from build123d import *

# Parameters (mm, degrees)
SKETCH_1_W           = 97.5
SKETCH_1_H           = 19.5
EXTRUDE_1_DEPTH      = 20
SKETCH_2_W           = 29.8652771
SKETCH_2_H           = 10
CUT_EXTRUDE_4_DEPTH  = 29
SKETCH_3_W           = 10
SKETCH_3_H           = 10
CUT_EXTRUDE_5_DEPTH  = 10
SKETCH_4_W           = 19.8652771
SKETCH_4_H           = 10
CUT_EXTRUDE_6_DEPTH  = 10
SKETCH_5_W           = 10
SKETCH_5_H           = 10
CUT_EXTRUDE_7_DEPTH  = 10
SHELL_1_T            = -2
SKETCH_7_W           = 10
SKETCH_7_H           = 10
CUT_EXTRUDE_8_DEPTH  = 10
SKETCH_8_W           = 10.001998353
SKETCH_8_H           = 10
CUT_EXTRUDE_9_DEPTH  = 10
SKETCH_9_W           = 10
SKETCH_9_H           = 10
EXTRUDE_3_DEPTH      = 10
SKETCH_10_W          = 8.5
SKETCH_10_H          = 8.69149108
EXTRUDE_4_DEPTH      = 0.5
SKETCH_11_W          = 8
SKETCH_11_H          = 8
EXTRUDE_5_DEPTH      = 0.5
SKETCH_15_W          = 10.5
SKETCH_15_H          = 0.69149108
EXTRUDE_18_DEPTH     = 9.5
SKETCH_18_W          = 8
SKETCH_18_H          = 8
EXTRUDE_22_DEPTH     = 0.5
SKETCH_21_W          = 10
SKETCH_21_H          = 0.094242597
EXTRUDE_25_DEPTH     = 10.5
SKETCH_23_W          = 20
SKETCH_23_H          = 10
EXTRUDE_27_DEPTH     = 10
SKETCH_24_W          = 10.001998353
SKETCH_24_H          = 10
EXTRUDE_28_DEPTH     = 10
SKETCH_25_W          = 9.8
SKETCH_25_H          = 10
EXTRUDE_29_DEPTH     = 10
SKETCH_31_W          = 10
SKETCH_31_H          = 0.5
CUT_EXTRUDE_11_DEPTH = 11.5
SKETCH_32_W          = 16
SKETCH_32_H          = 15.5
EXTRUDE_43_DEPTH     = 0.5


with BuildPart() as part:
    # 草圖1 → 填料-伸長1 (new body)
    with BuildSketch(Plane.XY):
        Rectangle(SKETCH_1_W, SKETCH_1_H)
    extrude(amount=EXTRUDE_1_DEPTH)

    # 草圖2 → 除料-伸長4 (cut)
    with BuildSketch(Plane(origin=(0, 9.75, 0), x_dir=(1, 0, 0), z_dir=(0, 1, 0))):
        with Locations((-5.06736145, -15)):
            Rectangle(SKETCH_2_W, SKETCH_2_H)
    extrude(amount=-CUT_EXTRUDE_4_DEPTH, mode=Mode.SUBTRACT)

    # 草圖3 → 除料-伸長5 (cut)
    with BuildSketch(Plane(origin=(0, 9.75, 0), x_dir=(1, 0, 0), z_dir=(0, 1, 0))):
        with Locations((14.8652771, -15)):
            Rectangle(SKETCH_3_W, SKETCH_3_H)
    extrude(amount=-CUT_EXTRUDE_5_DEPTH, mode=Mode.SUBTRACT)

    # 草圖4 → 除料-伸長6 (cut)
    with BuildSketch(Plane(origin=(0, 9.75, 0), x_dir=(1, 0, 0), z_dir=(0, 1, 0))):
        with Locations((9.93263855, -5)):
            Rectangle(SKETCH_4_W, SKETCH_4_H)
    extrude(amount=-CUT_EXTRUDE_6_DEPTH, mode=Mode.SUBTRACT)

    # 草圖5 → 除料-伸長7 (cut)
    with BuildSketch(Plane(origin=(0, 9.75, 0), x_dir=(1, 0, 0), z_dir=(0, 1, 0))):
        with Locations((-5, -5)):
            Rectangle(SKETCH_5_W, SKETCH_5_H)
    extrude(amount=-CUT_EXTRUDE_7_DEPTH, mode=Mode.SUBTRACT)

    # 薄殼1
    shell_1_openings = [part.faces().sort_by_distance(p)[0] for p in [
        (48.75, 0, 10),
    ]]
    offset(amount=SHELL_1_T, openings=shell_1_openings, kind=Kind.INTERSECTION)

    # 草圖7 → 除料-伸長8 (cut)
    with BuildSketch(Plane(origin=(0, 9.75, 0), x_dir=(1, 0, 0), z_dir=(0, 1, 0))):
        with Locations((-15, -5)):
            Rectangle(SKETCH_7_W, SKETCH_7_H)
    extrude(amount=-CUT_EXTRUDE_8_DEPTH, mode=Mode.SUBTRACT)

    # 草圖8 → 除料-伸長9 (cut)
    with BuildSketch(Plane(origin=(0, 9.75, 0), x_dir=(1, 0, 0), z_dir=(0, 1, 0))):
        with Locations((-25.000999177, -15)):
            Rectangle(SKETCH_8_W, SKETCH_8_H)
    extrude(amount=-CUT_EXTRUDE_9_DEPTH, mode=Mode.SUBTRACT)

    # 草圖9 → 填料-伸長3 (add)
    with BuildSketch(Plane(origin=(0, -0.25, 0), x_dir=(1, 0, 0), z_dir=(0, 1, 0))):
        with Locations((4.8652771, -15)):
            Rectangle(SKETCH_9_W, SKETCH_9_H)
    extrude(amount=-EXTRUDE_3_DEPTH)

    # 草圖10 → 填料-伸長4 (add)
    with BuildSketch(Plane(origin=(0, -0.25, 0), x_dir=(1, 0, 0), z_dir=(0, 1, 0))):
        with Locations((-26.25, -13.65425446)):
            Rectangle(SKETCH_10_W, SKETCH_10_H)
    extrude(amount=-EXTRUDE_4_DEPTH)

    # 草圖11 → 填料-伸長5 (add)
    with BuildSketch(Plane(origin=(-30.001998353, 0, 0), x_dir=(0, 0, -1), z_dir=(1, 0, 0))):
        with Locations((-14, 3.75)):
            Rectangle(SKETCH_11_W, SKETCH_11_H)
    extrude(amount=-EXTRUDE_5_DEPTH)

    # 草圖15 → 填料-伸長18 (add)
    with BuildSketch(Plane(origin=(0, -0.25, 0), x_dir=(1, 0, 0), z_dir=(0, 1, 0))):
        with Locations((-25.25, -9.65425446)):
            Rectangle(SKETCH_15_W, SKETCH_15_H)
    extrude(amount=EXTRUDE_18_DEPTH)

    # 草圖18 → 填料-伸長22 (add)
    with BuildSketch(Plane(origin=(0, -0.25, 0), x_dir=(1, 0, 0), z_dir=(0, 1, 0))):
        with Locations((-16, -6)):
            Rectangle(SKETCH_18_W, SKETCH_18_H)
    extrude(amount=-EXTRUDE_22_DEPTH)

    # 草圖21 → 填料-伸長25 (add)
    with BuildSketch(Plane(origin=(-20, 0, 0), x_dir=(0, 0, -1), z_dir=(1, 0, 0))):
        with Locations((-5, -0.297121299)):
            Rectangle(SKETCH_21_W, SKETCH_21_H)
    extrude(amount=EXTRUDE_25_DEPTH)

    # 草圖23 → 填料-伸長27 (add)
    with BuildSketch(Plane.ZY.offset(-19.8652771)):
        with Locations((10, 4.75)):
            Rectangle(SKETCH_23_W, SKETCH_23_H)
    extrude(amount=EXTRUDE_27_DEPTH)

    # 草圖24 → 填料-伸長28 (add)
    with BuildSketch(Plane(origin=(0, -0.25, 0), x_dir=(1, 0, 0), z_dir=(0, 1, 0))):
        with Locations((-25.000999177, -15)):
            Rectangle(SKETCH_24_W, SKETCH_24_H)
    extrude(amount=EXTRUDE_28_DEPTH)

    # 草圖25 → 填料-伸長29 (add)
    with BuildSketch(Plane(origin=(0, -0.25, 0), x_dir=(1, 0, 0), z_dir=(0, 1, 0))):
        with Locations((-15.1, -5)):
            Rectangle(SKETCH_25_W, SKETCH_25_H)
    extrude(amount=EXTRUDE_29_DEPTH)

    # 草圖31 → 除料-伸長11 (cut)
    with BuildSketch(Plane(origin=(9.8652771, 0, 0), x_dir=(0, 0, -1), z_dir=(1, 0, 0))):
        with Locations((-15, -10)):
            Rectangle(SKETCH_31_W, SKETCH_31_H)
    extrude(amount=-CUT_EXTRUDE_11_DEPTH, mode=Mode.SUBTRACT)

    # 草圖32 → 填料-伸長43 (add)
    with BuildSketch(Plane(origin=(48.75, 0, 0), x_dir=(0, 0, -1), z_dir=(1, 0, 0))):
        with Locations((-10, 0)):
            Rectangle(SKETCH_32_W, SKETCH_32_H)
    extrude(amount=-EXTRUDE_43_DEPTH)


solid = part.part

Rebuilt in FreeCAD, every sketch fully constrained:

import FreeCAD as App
import Part
import Sketcher
Q = App.Units.Quantity


def faces_at(feature, points):
    """Names of the faces that lie closest to the given points."""
    faces = feature.Shape.Faces
    near = lambda p: min(range(len(faces)), key=lambda i: faces[i].distToShape(Part.Vertex(*p))[0])
    return sorted({f"Face{near(p) + 1}" for p in points})

doc = App.newDocument("Part")
body = doc.addObject("PartDesign::Body", "Body")

# Sketch on XY plane
sketch1 = body.newObject("Sketcher::SketchObject", "Sketch")
sketch1.AttachmentSupport = (doc.getObject("XY_Plane"), [""])
sketch1.MapMode = "FlatFace"
sketch1.addGeometry([
    Part.LineSegment(App.Vector(-49, 10, 0), App.Vector(-49, -10, 0)),
    Part.LineSegment(App.Vector(-49, -10, 0), App.Vector(49, -10, 0)),
    Part.LineSegment(App.Vector(49, -10, 0), App.Vector(49, 10, 0)),
    Part.LineSegment(App.Vector(49, 10, 0), App.Vector(-49, 10, 0)),
], False)
sketch1.addConstraint([
    Sketcher.Constraint("Coincident", 0, 2, 1, 1),
    Sketcher.Constraint("Coincident", 1, 2, 2, 1),
    Sketcher.Constraint("Coincident", 2, 2, 3, 1),
    Sketcher.Constraint("Coincident", 3, 2, 0, 1),
    Sketcher.Constraint("Vertical", 0),
    Sketcher.Constraint("Horizontal", 1),
    Sketcher.Constraint("Vertical", 2),
    Sketcher.Constraint("Horizontal", 3),
    Sketcher.Constraint("Symmetric", 0, 2, 2, 2, -1, 1),
    Sketcher.Constraint("DistanceX", 1, 1, 1, 2, Q("97.5 mm")),
    Sketcher.Constraint("DistanceY", 0, 2, 0, 1, Q("19.5 mm")),
])
pad1 = body.newObject("PartDesign::Pad", "Pad")
pad1.Profile = sketch1
pad1.Length = 20

# Sketch on XZ plane
sketch2 = body.newObject("Sketcher::SketchObject", "Sketch001")
sketch2.AttachmentSupport = (doc.getObject("XZ_Plane"), [""])
sketch2.MapMode = "FlatFace"
sketch2.AttachmentOffset = App.Placement(App.Vector(0, 0, -9.75), App.Rotation())
sketch2.addGeometry([
    Part.LineSegment(App.Vector(-20, 10, 0), App.Vector(-20, 20, 0)),
    Part.LineSegment(App.Vector(-20, 20, 0), App.Vector(10, 20, 0)),
    Part.LineSegment(App.Vector(10, 20, 0), App.Vector(10, 10, 0)),
    Part.LineSegment(App.Vector(10, 10, 0), App.Vector(-20, 10, 0)),
], False)
sketch2.addConstraint([
    Sketcher.Constraint("Coincident", 0, 2, 1, 1),
    Sketcher.Constraint("Coincident", 1, 2, 2, 1),
    Sketcher.Constraint("Coincident", 2, 2, 3, 1),
    Sketcher.Constraint("Coincident", 3, 2, 0, 1),
    Sketcher.Constraint("Vertical", 0),
    Sketcher.Constraint("Horizontal", 1),
    Sketcher.Constraint("Vertical", 2),
    Sketcher.Constraint("Horizontal", 3),
    Sketcher.Constraint("DistanceY", 0, 1, 0, 2, Q("10 mm")),
    Sketcher.Constraint("DistanceX", 0, 2, -1, 1, Q("20 mm")),
    Sketcher.Constraint("DistanceY", -1, 1, 0, 2, Q("20 mm")),
    Sketcher.Constraint("DistanceX", 1, 1, 1, 2, Q("29.865277 mm")),
])
pocket1 = body.newObject("PartDesign::Pocket", "Pocket")
pocket1.Profile = sketch2
pocket1.Length = 29
pocket1.Reversed = True

# Sketch on XZ plane
sketch3 = body.newObject("Sketcher::SketchObject", "Sketch002")
sketch3.AttachmentSupport = (doc.getObject("XZ_Plane"), [""])
sketch3.MapMode = "FlatFace"
sketch3.AttachmentOffset = App.Placement(App.Vector(0, 0, -9.75), App.Rotation())
sketch3.addGeometry([
    Part.LineSegment(App.Vector(10, 10, 0), App.Vector(10, 20, 0)),
    Part.LineSegment(App.Vector(10, 20, 0), App.Vector(20, 20, 0)),
    Part.LineSegment(App.Vector(20, 20, 0), App.Vector(20, 10, 0)),
    Part.LineSegment(App.Vector(20, 10, 0), App.Vector(10, 10, 0)),
], False)
sketch3.addConstraint([
    Sketcher.Constraint("Coincident", 0, 2, 1, 1),
    Sketcher.Constraint("Coincident", 1, 2, 2, 1),
    Sketcher.Constraint("Coincident", 2, 2, 3, 1),
    Sketcher.Constraint("Coincident", 3, 2, 0, 1),
    Sketcher.Constraint("Vertical", 0),
    Sketcher.Constraint("Horizontal", 1),
    Sketcher.Constraint("Vertical", 2),
    Sketcher.Constraint("Horizontal", 3),
    Sketcher.Constraint("Equal", 3, 0),
    Sketcher.Constraint("DistanceX", 1, 1, 1, 2, Q("10 mm")),
    Sketcher.Constraint("DistanceY", -1, 1, 0, 2, Q("20 mm")),
    Sketcher.Constraint("DistanceX", -1, 1, 0, 2, Q("9.865277 mm")),
])
pocket2 = body.newObject("PartDesign::Pocket", "Pocket001")
pocket2.Profile = sketch3
pocket2.Length = 10
pocket2.Reversed = True

# Sketch on XZ plane
sketch4 = body.newObject("Sketcher::SketchObject", "Sketch003")
sketch4.AttachmentSupport = (doc.getObject("XZ_Plane"), [""])
sketch4.MapMode = "FlatFace"
sketch4.AttachmentOffset = App.Placement(App.Vector(0, 0, -9.75), App.Rotation())
sketch4.addGeometry([
    Part.LineSegment(App.Vector(0, 0, 0), App.Vector(0, 10, 0)),
    Part.LineSegment(App.Vector(0, 10, 0), App.Vector(20, 10, 0)),
    Part.LineSegment(App.Vector(20, 10, 0), App.Vector(20, 0, 0)),
    Part.LineSegment(App.Vector(20, 0, 0), App.Vector(0, 0, 0)),
], False)
sketch4.addConstraint([
    Sketcher.Constraint("Coincident", 0, 2, 1, 1),
    Sketcher.Constraint("Coincident", 1, 2, 2, 1),
    Sketcher.Constraint("Coincident", 2, 2, 3, 1),
    Sketcher.Constraint("Coincident", 3, 2, 0, 1),
    Sketcher.Constraint("Vertical", 0),
    Sketcher.Constraint("Horizontal", 1),
    Sketcher.Constraint("Vertical", 2),
    Sketcher.Constraint("Horizontal", 3),
    Sketcher.Constraint("Coincident", 3, 2, -1, 1),
    Sketcher.Constraint("DistanceY", 0, 1, 0, 2, Q("10 mm")),
    Sketcher.Constraint("DistanceX", 1, 1, 1, 2, Q("19.865277 mm")),
])
pocket3 = body.newObject("PartDesign::Pocket", "Pocket002")
pocket3.Profile = sketch4
pocket3.Length = 10
pocket3.Reversed = True

# Sketch on XZ plane
sketch5 = body.newObject("Sketcher::SketchObject", "Sketch004")
sketch5.AttachmentSupport = (doc.getObject("XZ_Plane"), [""])
sketch5.MapMode = "FlatFace"
sketch5.AttachmentOffset = App.Placement(App.Vector(0, 0, -9.75), App.Rotation())
sketch5.addGeometry([
    Part.LineSegment(App.Vector(-10, 0, 0), App.Vector(-10, 10, 0)),
    Part.LineSegment(App.Vector(-10, 10, 0), App.Vector(0, 10, 0)),
    Part.LineSegment(App.Vector(0, 10, 0), App.Vector(0, 0, 0)),
    Part.LineSegment(App.Vector(0, 0, 0), App.Vector(-10, 0, 0)),
], False)
sketch5.addConstraint([
    Sketcher.Constraint("Coincident", 0, 2, 1, 1),
    Sketcher.Constraint("Coincident", 1, 2, 2, 1),
    Sketcher.Constraint("Coincident", 2, 2, 3, 1),
    Sketcher.Constraint("Coincident", 3, 2, 0, 1),
    Sketcher.Constraint("Vertical", 0),
    Sketcher.Constraint("Horizontal", 1),
    Sketcher.Constraint("Vertical", 2),
    Sketcher.Constraint("Horizontal", 3),
    Sketcher.Constraint("Coincident", 2, 2, -1, 1),
    Sketcher.Constraint("Equal", 3, 0),
    Sketcher.Constraint("DistanceX", 1, 1, 1, 2, Q("10 mm")),
])
pocket4 = body.newObject("PartDesign::Pocket", "Pocket003")
pocket4.Profile = sketch5
pocket4.Length = 10
pocket4.Reversed = True
doc.recompute()

thickness = body.newObject("PartDesign::Thickness", "Thickness")
thickness.Base = (pocket4, faces_at(pocket4, [(48.75, 0, 10)]))
thickness.Value = 2
thickness.Reversed = True
thickness.Join = "Intersection"

# Sketch on XZ plane
sketch6 = body.newObject("Sketcher::SketchObject", "Sketch005")
sketch6.AttachmentSupport = (doc.getObject("XZ_Plane"), [""])
sketch6.MapMode = "FlatFace"
sketch6.AttachmentOffset = App.Placement(App.Vector(0, 0, -9.75), App.Rotation())
sketch6.addGeometry([
    Part.LineSegment(App.Vector(-20, 0, 0), App.Vector(-20, 10, 0)),
    Part.LineSegment(App.Vector(-20, 10, 0), App.Vector(-10, 10, 0)),
    Part.LineSegment(App.Vector(-10, 10, 0), App.Vector(-10, 0, 0)),
    Part.LineSegment(App.Vector(-10, 0, 0), App.Vector(-20, 0, 0)),
], False)
sketch6.addConstraint([
    Sketcher.Constraint("Coincident", 0, 2, 1, 1),
    Sketcher.Constraint("Coincident", 1, 2, 2, 1),
    Sketcher.Constraint("Coincident", 2, 2, 3, 1),
    Sketcher.Constraint("Coincident", 3, 2, 0, 1),
    Sketcher.Constraint("Vertical", 0),
    Sketcher.Constraint("Horizontal", 1),
    Sketcher.Constraint("Vertical", 2),
    Sketcher.Constraint("Horizontal", 3),
    Sketcher.Constraint("PointOnObject", 2, 2, -1),
    Sketcher.Constraint("Equal", 3, 0),
    Sketcher.Constraint("DistanceX", 1, 1, 1, 2, Q("10 mm")),
    Sketcher.Constraint("DistanceX", 0, 2, -1, 1, Q("20 mm")),
])
pocket5 = body.newObject("PartDesign::Pocket", "Pocket004")
pocket5.Profile = sketch6
pocket5.Length = 10
pocket5.Reversed = True

# Sketch on XZ plane
sketch7 = body.newObject("Sketcher::SketchObject", "Sketch006")
sketch7.AttachmentSupport = (doc.getObject("XZ_Plane"), [""])
sketch7.MapMode = "FlatFace"
sketch7.AttachmentOffset = App.Placement(App.Vector(0, 0, -9.75), App.Rotation())
sketch7.addGeometry([
    Part.LineSegment(App.Vector(-30, 10, 0), App.Vector(-30, 20, 0)),
    Part.LineSegment(App.Vector(-30, 20, 0), App.Vector(-20, 20, 0)),
    Part.LineSegment(App.Vector(-20, 20, 0), App.Vector(-20, 10, 0)),
    Part.LineSegment(App.Vector(-20, 10, 0), App.Vector(-30, 10, 0)),
], False)
sketch7.addConstraint([
    Sketcher.Constraint("Coincident", 0, 2, 1, 1),
    Sketcher.Constraint("Coincident", 1, 2, 2, 1),
    Sketcher.Constraint("Coincident", 2, 2, 3, 1),
    Sketcher.Constraint("Coincident", 3, 2, 0, 1),
    Sketcher.Constraint("Vertical", 0),
    Sketcher.Constraint("Horizontal", 1),
    Sketcher.Constraint("Vertical", 2),
    Sketcher.Constraint("Horizontal", 3),
    Sketcher.Constraint("DistanceY", 0, 1, 0, 2, Q("10 mm")),
    Sketcher.Constraint("DistanceY", -1, 1, 0, 2, Q("20 mm")),
    Sketcher.Constraint("DistanceX", 1, 2, -1, 1, Q("20 mm")),
    Sketcher.Constraint("DistanceX", 1, 1, 1, 2, Q("10.001998 mm")),
])
pocket6 = body.newObject("PartDesign::Pocket", "Pocket005")
pocket6.Profile = sketch7
pocket6.Length = 10
pocket6.Reversed = True

# Sketch on XZ plane
sketch8 = body.newObject("Sketcher::SketchObject", "Sketch007")
sketch8.AttachmentSupport = (doc.getObject("XZ_Plane"), [""])
sketch8.MapMode = "FlatFace"
sketch8.AttachmentOffset = App.Placement(App.Vector(0, 0, 0.25), App.Rotation())
sketch8.addGeometry([
    Part.LineSegment(App.Vector(0, 10, 0), App.Vector(0, 20, 0)),
    Part.LineSegment(App.Vector(0, 20, 0), App.Vector(10, 20, 0)),
    Part.LineSegment(App.Vector(10, 20, 0), App.Vector(10, 10, 0)),
    Part.LineSegment(App.Vector(10, 10, 0), App.Vector(0, 10, 0)),
], False)
sketch8.addConstraint([
    Sketcher.Constraint("Coincident", 0, 2, 1, 1),
    Sketcher.Constraint("Coincident", 1, 2, 2, 1),
    Sketcher.Constraint("Coincident", 2, 2, 3, 1),
    Sketcher.Constraint("Coincident", 3, 2, 0, 1),
    Sketcher.Constraint("Vertical", 0),
    Sketcher.Constraint("Horizontal", 1),
    Sketcher.Constraint("Vertical", 2),
    Sketcher.Constraint("Horizontal", 3),
    Sketcher.Constraint("Equal", 3, 0),
    Sketcher.Constraint("DistanceX", 1, 1, 1, 2, Q("10 mm")),
    Sketcher.Constraint("DistanceY", -1, 1, 0, 2, Q("20 mm")),
    Sketcher.Constraint("DistanceX", 0, 2, -1, 1, Q("0.134723 mm")),
])
pad2 = body.newObject("PartDesign::Pad", "Pad001")
pad2.Profile = sketch8
pad2.Length = 10

# Sketch on XZ plane
sketch9 = body.newObject("Sketcher::SketchObject", "Sketch008")
sketch9.AttachmentSupport = (doc.getObject("XZ_Plane"), [""])
sketch9.MapMode = "FlatFace"
sketch9.AttachmentOffset = App.Placement(App.Vector(0, 0, 0.25), App.Rotation())
sketch9.addGeometry([
    Part.LineSegment(App.Vector(-30, 9, 0), App.Vector(-30, 18, 0)),
    Part.LineSegment(App.Vector(-30, 18, 0), App.Vector(-22, 18, 0)),
    Part.LineSegment(App.Vector(-22, 18, 0), App.Vector(-22, 9, 0)),
    Part.LineSegment(App.Vector(-22, 9, 0), App.Vector(-30, 9, 0)),
], False)
sketch9.addConstraint([
    Sketcher.Constraint("Coincident", 0, 2, 1, 1),
    Sketcher.Constraint("Coincident", 1, 2, 2, 1),
    Sketcher.Constraint("Coincident", 2, 2, 3, 1),
    Sketcher.Constraint("Coincident", 3, 2, 0, 1),
    Sketcher.Constraint("Vertical", 0),
    Sketcher.Constraint("Horizontal", 1),
    Sketcher.Constraint("Vertical", 2),
    Sketcher.Constraint("Horizontal", 3),
    Sketcher.Constraint("DistanceX", 1, 1, 1, 2, Q("8.5 mm")),
    Sketcher.Constraint("DistanceY", -1, 1, 0, 2, Q("18 mm")),
    Sketcher.Constraint("DistanceX", 1, 2, -1, 1, Q("22 mm")),
    Sketcher.Constraint("DistanceY", 0, 1, 0, 2, Q("8.691491 mm")),
])
pad3 = body.newObject("PartDesign::Pad", "Pad002")
pad3.Profile = sketch9
pad3.Length = 0.5

# Sketch on YZ plane
sketch10 = body.newObject("Sketcher::SketchObject", "Sketch009")
sketch10.AttachmentSupport = (doc.getObject("YZ_Plane"), [""])
sketch10.MapMode = "FlatFace"
sketch10.AttachmentOffset = App.Placement(App.Vector(0, 0, -30.001998), App.Rotation())
sketch10.addGeometry([
    Part.LineSegment(App.Vector(8, 18, 0), App.Vector(0, 18, 0)),
    Part.LineSegment(App.Vector(0, 18, 0), App.Vector(0, 10, 0)),
    Part.LineSegment(App.Vector(0, 10, 0), App.Vector(8, 10, 0)),
    Part.LineSegment(App.Vector(8, 10, 0), App.Vector(8, 18, 0)),
], False)
sketch10.addConstraint([
    Sketcher.Constraint("Coincident", 0, 2, 1, 1),
    Sketcher.Constraint("Coincident", 1, 2, 2, 1),
    Sketcher.Constraint("Coincident", 2, 2, 3, 1),
    Sketcher.Constraint("Coincident", 3, 2, 0, 1),
    Sketcher.Constraint("Horizontal", 0),
    Sketcher.Constraint("Vertical", 1),
    Sketcher.Constraint("Horizontal", 2),
    Sketcher.Constraint("Vertical", 3),
    Sketcher.Constraint("Equal", 2, 1),
    Sketcher.Constraint("DistanceX", 0, 2, 0, 1, Q("8 mm")),
    Sketcher.Constraint("DistanceY", -1, 1, 0, 2, Q("18 mm")),
    Sketcher.Constraint("DistanceX", 0, 2, -1, 1, Q("0.25 mm")),
])
pad4 = body.newObject("PartDesign::Pad", "Pad003")
pad4.Profile = sketch10
pad4.Length = 0.5
pad4.Reversed = True

# Sketch on XZ plane
sketch11 = body.newObject("Sketcher::SketchObject", "Sketch010")
sketch11.AttachmentSupport = (doc.getObject("XZ_Plane"), [""])
sketch11.MapMode = "FlatFace"
sketch11.AttachmentOffset = App.Placement(App.Vector(0, 0, 0.25), App.Rotation())
sketch11.addGeometry([
    Part.LineSegment(App.Vector(-30.5, 9.3, 0), App.Vector(-30.5, 10, 0)),
    Part.LineSegment(App.Vector(-30.5, 10, 0), App.Vector(-20, 10, 0)),
    Part.LineSegment(App.Vector(-20, 10, 0), App.Vector(-20, 9.3, 0)),
    Part.LineSegment(App.Vector(-20, 9.3, 0), App.Vector(-30.5, 9.3, 0)),
], False)
sketch11.addConstraint([
    Sketcher.Constraint("Coincident", 0, 2, 1, 1),
    Sketcher.Constraint("Coincident", 1, 2, 2, 1),
    Sketcher.Constraint("Coincident", 2, 2, 3, 1),
    Sketcher.Constraint("Coincident", 3, 2, 0, 1),
    Sketcher.Constraint("Vertical", 0),
    Sketcher.Constraint("Horizontal", 1),
    Sketcher.Constraint("Vertical", 2),
    Sketcher.Constraint("Horizontal", 3),
    Sketcher.Constraint("DistanceX", 1, 1, 1, 2, Q("10.5 mm")),
    Sketcher.Constraint("DistanceY", -1, 1, 0, 2, Q("10 mm")),
    Sketcher.Constraint("DistanceX", 1, 2, -1, 1, Q("20 mm")),
    Sketcher.Constraint("DistanceY", 0, 1, 0, 2, Q("0.691491 mm")),
])
pad5 = body.newObject("PartDesign::Pad", "Pad004")
pad5.Profile = sketch11
pad5.Length = 9.5
pad5.Reversed = True

# Sketch on XZ plane
sketch12 = body.newObject("Sketcher::SketchObject", "Sketch011")
sketch12.AttachmentSupport = (doc.getObject("XZ_Plane"), [""])
sketch12.MapMode = "FlatFace"
sketch12.AttachmentOffset = App.Placement(App.Vector(0, 0, 0.25), App.Rotation())
sketch12.addGeometry([
    Part.LineSegment(App.Vector(-20, 2, 0), App.Vector(-20, 10, 0)),
    Part.LineSegment(App.Vector(-20, 10, 0), App.Vector(-12, 10, 0)),
    Part.LineSegment(App.Vector(-12, 10, 0), App.Vector(-12, 2, 0)),
    Part.LineSegment(App.Vector(-12, 2, 0), App.Vector(-20, 2, 0)),
], False)
sketch12.addConstraint([
    Sketcher.Constraint("Coincident", 0, 2, 1, 1),
    Sketcher.Constraint("Coincident", 1, 2, 2, 1),
    Sketcher.Constraint("Coincident", 2, 2, 3, 1),
    Sketcher.Constraint("Coincident", 3, 2, 0, 1),
    Sketcher.Constraint("Vertical", 0),
    Sketcher.Constraint("Horizontal", 1),
    Sketcher.Constraint("Vertical", 2),
    Sketcher.Constraint("Horizontal", 3),
    Sketcher.Constraint("Equal", 3, 0),
    Sketcher.Constraint("DistanceX", 1, 1, 1, 2, Q("8 mm")),
    Sketcher.Constraint("DistanceX", 0, 2, -1, 1, Q("20 mm")),
    Sketcher.Constraint("DistanceY", -1, 1, 0, 2, Q("10 mm")),
])
pad6 = body.newObject("PartDesign::Pad", "Pad005")
pad6.Profile = sketch12
pad6.Length = 0.5

# Sketch on YZ plane
sketch13 = body.newObject("Sketcher::SketchObject", "Sketch012")
sketch13.AttachmentSupport = (doc.getObject("YZ_Plane"), [""])
sketch13.MapMode = "FlatFace"
sketch13.AttachmentOffset = App.Placement(App.Vector(0, 0, -20), App.Rotation())
sketch13.addGeometry([
    Part.LineSegment(App.Vector(-0.25, 10, 0), App.Vector(-0.34, 10, 0)),
    Part.LineSegment(App.Vector(-0.34, 10, 0), App.Vector(-0.34, 0, 0)),
    Part.LineSegment(App.Vector(-0.34, 0, 0), App.Vector(-0.25, 0, 0)),
    Part.LineSegment(App.Vector(-0.25, 0, 0), App.Vector(-0.25, 10, 0)),
], False)
sketch13.addConstraint([
    Sketcher.Constraint("Coincident", 0, 2, 1, 1),
    Sketcher.Constraint("Coincident", 1, 2, 2, 1),
    Sketcher.Constraint("Coincident", 2, 2, 3, 1),
    Sketcher.Constraint("Coincident", 3, 2, 0, 1),
    Sketcher.Constraint("Horizontal", 0),
    Sketcher.Constraint("Vertical", 1),
    Sketcher.Constraint("Horizontal", 2),
    Sketcher.Constraint("Vertical", 3),
    Sketcher.Constraint("PointOnObject", 1, 2, -1),
    Sketcher.Constraint("DistanceY", 1, 2, 1, 1, Q("10 mm")),
    Sketcher.Constraint("DistanceX", 2, 2, -1, 1, Q("0.25 mm")),
    Sketcher.Constraint("DistanceX", 0, 2, 0, 1, Q("0.094243 mm")),
])
pad7 = body.newObject("PartDesign::Pad", "Pad006")
pad7.Profile = sketch13
pad7.Length = 10.5

# Sketch on YZ plane
sketch14 = body.newObject("Sketcher::SketchObject", "Sketch013")
sketch14.AttachmentSupport = (doc.getObject("YZ_Plane"), [""])
sketch14.MapMode = "FlatFace"
sketch14.AttachmentOffset = App.Placement(App.Vector(0, 0, 19.865277), App.Rotation())
sketch14.addGeometry([
    Part.LineSegment(App.Vector(10, 0, 0), App.Vector(0, 0, 0)),
    Part.LineSegment(App.Vector(0, 0, 0), App.Vector(0, 20, 0)),
    Part.LineSegment(App.Vector(0, 20, 0), App.Vector(10, 20, 0)),
    Part.LineSegment(App.Vector(10, 20, 0), App.Vector(10, 0, 0)),
], False)
sketch14.addConstraint([
    Sketcher.Constraint("Coincident", 0, 2, 1, 1),
    Sketcher.Constraint("Coincident", 1, 2, 2, 1),
    Sketcher.Constraint("Coincident", 2, 2, 3, 1),
    Sketcher.Constraint("Coincident", 3, 2, 0, 1),
    Sketcher.Constraint("Horizontal", 0),
    Sketcher.Constraint("Vertical", 1),
    Sketcher.Constraint("Horizontal", 2),
    Sketcher.Constraint("Vertical", 3),
    Sketcher.Constraint("PointOnObject", 0, 2, -1),
    Sketcher.Constraint("DistanceX", 0, 2, 0, 1, Q("10 mm")),
    Sketcher.Constraint("DistanceY", 1, 1, 1, 2, Q("20 mm")),
    Sketcher.Constraint("DistanceX", 0, 2, -1, 1, Q("0.25 mm")),
])
pad8 = body.newObject("PartDesign::Pad", "Pad007")
pad8.Profile = sketch14
pad8.Length = 10
pad8.Reversed = True

# Sketch on XZ plane
sketch15 = body.newObject("Sketcher::SketchObject", "Sketch014")
sketch15.AttachmentSupport = (doc.getObject("XZ_Plane"), [""])
sketch15.MapMode = "FlatFace"
sketch15.AttachmentOffset = App.Placement(App.Vector(0, 0, 0.25), App.Rotation())
sketch15.addGeometry([
    Part.LineSegment(App.Vector(-30, 10, 0), App.Vector(-30, 20, 0)),
    Part.LineSegment(App.Vector(-30, 20, 0), App.Vector(-20, 20, 0)),
    Part.LineSegment(App.Vector(-20, 20, 0), App.Vector(-20, 10, 0)),
    Part.LineSegment(App.Vector(-20, 10, 0), App.Vector(-30, 10, 0)),
], False)
sketch15.addConstraint([
    Sketcher.Constraint("Coincident", 0, 2, 1, 1),
    Sketcher.Constraint("Coincident", 1, 2, 2, 1),
    Sketcher.Constraint("Coincident", 2, 2, 3, 1),
    Sketcher.Constraint("Coincident", 3, 2, 0, 1),
    Sketcher.Constraint("Vertical", 0),
    Sketcher.Constraint("Horizontal", 1),
    Sketcher.Constraint("Vertical", 2),
    Sketcher.Constraint("Horizontal", 3),
    Sketcher.Constraint("DistanceY", 0, 1, 0, 2, Q("10 mm")),
    Sketcher.Constraint("DistanceY", -1, 1, 0, 2, Q("20 mm")),
    Sketcher.Constraint("DistanceX", 1, 2, -1, 1, Q("20 mm")),
    Sketcher.Constraint("DistanceX", 1, 1, 1, 2, Q("10.001998 mm")),
])
pad9 = body.newObject("PartDesign::Pad", "Pad008")
pad9.Profile = sketch15
pad9.Length = 10
pad9.Reversed = True

# Sketch on XZ plane
sketch16 = body.newObject("Sketcher::SketchObject", "Sketch015")
sketch16.AttachmentSupport = (doc.getObject("XZ_Plane"), [""])
sketch16.MapMode = "FlatFace"
sketch16.AttachmentOffset = App.Placement(App.Vector(0, 0, 0.25), App.Rotation())
sketch16.addGeometry([
    Part.LineSegment(App.Vector(-20, 0, 0), App.Vector(-20, 10, 0)),
    Part.LineSegment(App.Vector(-20, 10, 0), App.Vector(-10, 10, 0)),
    Part.LineSegment(App.Vector(-10, 10, 0), App.Vector(-10, 0, 0)),
    Part.LineSegment(App.Vector(-10, 0, 0), App.Vector(-20, 0, 0)),
], False)
sketch16.addConstraint([
    Sketcher.Constraint("Coincident", 0, 2, 1, 1),
    Sketcher.Constraint("Coincident", 1, 2, 2, 1),
    Sketcher.Constraint("Coincident", 2, 2, 3, 1),
    Sketcher.Constraint("Coincident", 3, 2, 0, 1),
    Sketcher.Constraint("Vertical", 0),
    Sketcher.Constraint("Horizontal", 1),
    Sketcher.Constraint("Vertical", 2),
    Sketcher.Constraint("Horizontal", 3),
    Sketcher.Constraint("PointOnObject", 2, 2, -1),
    Sketcher.Constraint("DistanceY", 0, 1, 0, 2, Q("10 mm")),
    Sketcher.Constraint("DistanceX", 1, 1, 1, 2, Q("9.8 mm")),
    Sketcher.Constraint("DistanceX", 0, 2, -1, 1, Q("20 mm")),
])
pad10 = body.newObject("PartDesign::Pad", "Pad009")
pad10.Profile = sketch16
pad10.Length = 10
pad10.Reversed = True

# Sketch on YZ plane
sketch17 = body.newObject("Sketcher::SketchObject", "Sketch016")
sketch17.AttachmentSupport = (doc.getObject("YZ_Plane"), [""])
sketch17.MapMode = "FlatFace"
sketch17.AttachmentOffset = App.Placement(App.Vector(0, 0, 9.865277), App.Rotation())
sketch17.addGeometry([
    Part.LineSegment(App.Vector(-9.8, 20, 0), App.Vector(-10.2, 20, 0)),
    Part.LineSegment(App.Vector(-10.2, 20, 0), App.Vector(-10.2, 10, 0)),
    Part.LineSegment(App.Vector(-10.2, 10, 0), App.Vector(-9.8, 10, 0)),
    Part.LineSegment(App.Vector(-9.8, 10, 0), App.Vector(-9.8, 20, 0)),
], False)
sketch17.addConstraint([
    Sketcher.Constraint("Coincident", 0, 2, 1, 1),
    Sketcher.Constraint("Coincident", 1, 2, 2, 1),
    Sketcher.Constraint("Coincident", 2, 2, 3, 1),
    Sketcher.Constraint("Coincident", 3, 2, 0, 1),
    Sketcher.Constraint("Horizontal", 0),
    Sketcher.Constraint("Vertical", 1),
    Sketcher.Constraint("Horizontal", 2),
    Sketcher.Constraint("Vertical", 3),
    Sketcher.Constraint("DistanceY", 1, 2, 1, 1, Q("10 mm")),
    Sketcher.Constraint("DistanceX", 0, 2, 0, 1, Q("0.5 mm")),
    Sketcher.Constraint("DistanceY", -1, 1, 0, 2, Q("20 mm")),
    Sketcher.Constraint("DistanceX", 0, 2, -1, 1, Q("10.25 mm")),
])
pocket7 = body.newObject("PartDesign::Pocket", "Pocket006")
pocket7.Profile = sketch17
pocket7.Length = 11.5

# Sketch on YZ plane
sketch18 = body.newObject("Sketcher::SketchObject", "Sketch017")
sketch18.AttachmentSupport = (doc.getObject("YZ_Plane"), [""])
sketch18.MapMode = "FlatFace"
sketch18.AttachmentOffset = App.Placement(App.Vector(0, 0, 48.75), App.Rotation())
sketch18.addGeometry([
    Part.LineSegment(App.Vector(8, 18, 0), App.Vector(-8, 18, 0)),
    Part.LineSegment(App.Vector(-8, 18, 0), App.Vector(-8, 2, 0)),
    Part.LineSegment(App.Vector(-8, 2, 0), App.Vector(8, 2, 0)),
    Part.LineSegment(App.Vector(8, 2, 0), App.Vector(8, 18, 0)),
], False)
sketch18.addConstraint([
    Sketcher.Constraint("Coincident", 0, 2, 1, 1),
    Sketcher.Constraint("Coincident", 1, 2, 2, 1),
    Sketcher.Constraint("Coincident", 2, 2, 3, 1),
    Sketcher.Constraint("Coincident", 3, 2, 0, 1),
    Sketcher.Constraint("Horizontal", 0),
    Sketcher.Constraint("Vertical", 1),
    Sketcher.Constraint("Horizontal", 2),
    Sketcher.Constraint("Vertical", 3),
    Sketcher.Constraint("DistanceY", 1, 2, 1, 1, Q("16 mm")),
    Sketcher.Constraint("DistanceX", 0, 2, 0, 1, Q("15.5 mm")),
    Sketcher.Constraint("DistanceY", -1, 1, 0, 2, Q("18 mm")),
    Sketcher.Constraint("DistanceX", 0, 2, -1, 1, Q("7.75 mm")),
])
pad11 = body.newObject("PartDesign::Pad", "Pad010")
pad11.Profile = sketch18
pad11.Length = 0.5
pad11.Reversed = True

doc.recompute()
